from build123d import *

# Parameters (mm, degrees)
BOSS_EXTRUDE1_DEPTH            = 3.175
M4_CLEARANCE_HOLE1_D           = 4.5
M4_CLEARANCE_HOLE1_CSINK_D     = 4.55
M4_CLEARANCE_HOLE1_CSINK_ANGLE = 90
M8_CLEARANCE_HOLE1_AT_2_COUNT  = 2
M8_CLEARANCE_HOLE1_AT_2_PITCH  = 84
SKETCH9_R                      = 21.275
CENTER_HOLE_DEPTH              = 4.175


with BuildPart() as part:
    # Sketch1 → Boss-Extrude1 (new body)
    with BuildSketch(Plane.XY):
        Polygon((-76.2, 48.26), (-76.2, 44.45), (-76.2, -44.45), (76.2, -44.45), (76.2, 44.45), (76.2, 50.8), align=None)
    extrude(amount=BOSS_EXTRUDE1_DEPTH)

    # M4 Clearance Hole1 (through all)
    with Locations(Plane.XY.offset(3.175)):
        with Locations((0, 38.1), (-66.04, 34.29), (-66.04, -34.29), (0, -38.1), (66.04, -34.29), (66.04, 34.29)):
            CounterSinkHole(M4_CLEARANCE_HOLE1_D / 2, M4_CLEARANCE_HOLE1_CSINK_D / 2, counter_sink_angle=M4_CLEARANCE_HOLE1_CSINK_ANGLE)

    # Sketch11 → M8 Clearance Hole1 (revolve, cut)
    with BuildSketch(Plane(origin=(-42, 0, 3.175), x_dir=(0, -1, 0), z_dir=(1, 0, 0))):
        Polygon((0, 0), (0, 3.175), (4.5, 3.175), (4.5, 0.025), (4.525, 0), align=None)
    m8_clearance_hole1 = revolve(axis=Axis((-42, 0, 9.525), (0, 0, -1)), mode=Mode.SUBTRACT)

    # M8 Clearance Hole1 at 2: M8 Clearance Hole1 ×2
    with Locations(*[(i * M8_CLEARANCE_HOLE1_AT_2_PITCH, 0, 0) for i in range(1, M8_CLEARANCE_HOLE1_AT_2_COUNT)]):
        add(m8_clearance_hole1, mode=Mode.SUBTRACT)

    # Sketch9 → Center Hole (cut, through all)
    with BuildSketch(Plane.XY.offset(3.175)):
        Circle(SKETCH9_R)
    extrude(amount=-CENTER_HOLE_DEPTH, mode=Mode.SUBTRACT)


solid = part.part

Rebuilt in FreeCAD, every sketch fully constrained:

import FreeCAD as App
import Part
import Sketcher

V = App.Vector
Q = App.Units.Quantity

doc = App.newDocument("Part")
body = doc.addObject("PartDesign::Body", "Body")

sketch1 = body.newObject("Sketcher::SketchObject", "Sketch")
sketch1.AttachmentSupport = (doc.getObject("XY_Plane"), [""])
sketch1.MapMode = "FlatFace"
sketch1.addGeometry([
    Part.LineSegment(V(-76.2, 48.26, 0), V(-76.2, -44.45, 0)),
    Part.LineSegment(V(-76.2, -44.45, 0), V(76.2, -44.45, 0)),
    Part.LineSegment(V(76.2, -44.45, 0), V(76.2, 50.8, 0)),
    Part.LineSegment(V(76.2, 50.8, 0), V(-76.2, 48.26, 0)),
], False)
sketch1.addConstraint([
    Sketcher.Constraint("Coincident", 0, 2, 1, 1),
    Sketcher.Constraint("Coincident", 1, 2, 2, 1),
    Sketcher.Constraint("Coincident", 2, 2, 3, 1),
    Sketcher.Constraint("Coincident", 3, 2, 0, 1),
    Sketcher.Constraint("Vertical", 0),
    Sketcher.Constraint("Horizontal", 1),
    Sketcher.Constraint("Vertical", 2),
    Sketcher.Constraint("DistanceX", 1, 1, 1, 2, Q("6 in")),
    Sketcher.Constraint("DistanceX", 0, 2, -1, 1, Q("3 in")),
    Sketcher.Constraint("DistanceY", -1, 1, 2, 2, Q("2 in")),
    Sketcher.Constraint("DistanceY", 0, 2, 0, 1, Q("3.65 in")),
    Sketcher.Constraint("DistanceY", 2, 1, 2, 2, Q("3.75 in")),
])
pad1 = body.newObject("PartDesign::Pad", "Pad")
pad1.Profile = sketch1
pad1.Length = Q("0.125 in")

sketch2 = body.newObject("Sketcher::SketchObject", "Sketch001")
sketch2.AttachmentSupport = (doc.getObject("XY_Plane"), [""])
sketch2.MapMode = "FlatFace"
sketch2.AttachmentOffset = App.Placement(V(0, 0, 0.125 * 25.4), App.Rotation())
sketch2.addGeometry([
    Part.Circle(V(0, 38.1, 0), V(0, 0, 1), 2.25),
    Part.Circle(V(-66.04, 34.29, 0), V(0, 0, 1), 2.25),
    Part.Circle(V(-66.04, -34.29, 0), V(0, 0, 1), 2.25),
    Part.Circle(V(0, -38.1, 0), V(0, 0, 1), 2.25),
    Part.Circle(V(66.04, -34.29, 0), V(0, 0, 1), 2.25),
    Part.Circle(V(66.04, 34.29, 0), V(0, 0, 1), 2.25),
], False)
sketch2.addConstraint([
    Sketcher.Constraint("Equal", 0, 1),
    Sketcher.Constraint("Equal", 1, 2),
    Sketcher.Constraint("Equal", 2, 3),
    Sketcher.Constraint("Equal", 3, 4),
    Sketcher.Constraint("Equal", 4, 5),
    Sketcher.Constraint("Symmetric", 0, 3, 3, 3, -1, 1),
    Sketcher.Constraint("Symmetric", 1, 3, 4, 3, -1, 1),
    Sketcher.Constraint("Symmetric", 2, 3, 5, 3, -1, 1),
    Sketcher.Constraint("Symmetric", 2, 3, 4, 3, -2),
    Sketcher.Constraint("PointOnObject", 0, 3, -2),
    Sketcher.Constraint("DistanceY", 3, 3, 0, 3, Q("3 in")),
    Sketcher.Constraint("DistanceX", 1, 3, -1, 1, Q("2.6 in")),
    Sketcher.Constraint("DistanceY", 2, 3, 1, 3, Q("2.7 in")),
    Sketcher.Constraint("Diameter", 0, Q("4.5 mm")),
])
doc.recompute()
hole = body.newObject("PartDesign::Hole", "Hole")
hole.Profile = sketch2
hole.ThreadType = "None"
hole.Diameter = 4.5
hole.DepthType = "ThroughAll"
hole.HoleCutType = "Countersink"
hole.HoleCutDiameter = 4.55
hole.HoleCutCountersinkAngle = 90

sketch3 = body.newObject("Sketcher::SketchObject", "Sketch002")
sketch3.AttachmentSupport = (doc.getObject("YZ_Plane"), [""])
sketch3.MapMode = "FlatFace"
sketch3.AttachmentOffset = App.Placement(V(0, 0, -42), App.Rotation())
sketch3.addGeometry([
    Part.LineSegment(V(0, 0, 0), V(0, 3.175, 0)),
    Part.LineSegment(V(0, 3.175, 0), V(-4.525, 3.175, 0)),
    Part.LineSegment(V(-4.525, 3.175, 0), V(-4.5, 3.15, 0)),
    Part.LineSegment(V(-4.5, 3.15, 0), V(-4.5, 0, 0)),
    Part.LineSegment(V(-4.5, 0, 0), V(0, 0, 0)),
], False)
sketch3.addConstraint([
    Sketcher.Constraint("Coincident", 0, 2, 1, 1),
    Sketcher.Constraint("Coincident", 1, 2, 2, 1),
    Sketcher.Constraint("Coincident", 2, 2, 3, 1),
    Sketcher.Constraint("Coincident", 3, 2, 4, 1),
    Sketcher.Constraint("Coincident", 4, 2, 0, 1),
    Sketcher.Constraint("Vertical", 0),
    Sketcher.Constraint("Horizontal", 1),
    Sketcher.Constraint("Vertical", 3),
    Sketcher.Constraint("Horizontal", 4),
    Sketcher.Constraint("Coincident", 4, 2, -1, 1),
    Sketcher.Constraint("Angle", 2, Q("-45 deg")),
    Sketcher.Constraint("DistanceY", 0, 1, 0, 2, Q("0.125 in")),
    Sketcher.Constraint("DistanceX", 1, 2, 1, 1, Q("4.525 mm")),
    Sketcher.Constraint("DistanceX", 4, 1, 4, 2, Q("4.5 mm")),
])
groove = body.newObject("PartDesign::Groove", "Groove")
groove.Profile = sketch3
groove.ReferenceAxis = (sketch3, ["V_Axis"])
groove.Angle = 360
doc.recompute()

linearpattern = body.newObject("PartDesign::LinearPattern", "LinearPattern")
linearpattern.Originals = [groove]
linearpattern.Direction = (doc.getObject("X_Axis"), [""])
linearpattern.Mode = "offset"
linearpattern.Offset = 84
linearpattern.Occurrences = 2
body.Tip = linearpattern

sketch4 = body.newObject("Sketcher::SketchObject", "Sketch003")
sketch4.AttachmentSupport = (doc.getObject("XY_Plane"), [""])
sketch4.MapMode = "FlatFace"
sketch4.AttachmentOffset = App.Placement(V(0, 0, 0.125 * 25.4), App.Rotation())
sketch4.addGeometry(Part.Circle(V(0, 0, 0), V(0, 0, 1), 21.275), False)
sketch4.addConstraint([
    Sketcher.Constraint("Coincident", 0, 3, -1, 1),
    Sketcher.Constraint("Diameter", 0, Q("42.55 mm")),
])
pocket1 = body.newObject("PartDesign::Pocket", "Pocket")
pocket1.Profile = sketch4
pocket1.Type = "ThroughAll"

doc.recompute()
